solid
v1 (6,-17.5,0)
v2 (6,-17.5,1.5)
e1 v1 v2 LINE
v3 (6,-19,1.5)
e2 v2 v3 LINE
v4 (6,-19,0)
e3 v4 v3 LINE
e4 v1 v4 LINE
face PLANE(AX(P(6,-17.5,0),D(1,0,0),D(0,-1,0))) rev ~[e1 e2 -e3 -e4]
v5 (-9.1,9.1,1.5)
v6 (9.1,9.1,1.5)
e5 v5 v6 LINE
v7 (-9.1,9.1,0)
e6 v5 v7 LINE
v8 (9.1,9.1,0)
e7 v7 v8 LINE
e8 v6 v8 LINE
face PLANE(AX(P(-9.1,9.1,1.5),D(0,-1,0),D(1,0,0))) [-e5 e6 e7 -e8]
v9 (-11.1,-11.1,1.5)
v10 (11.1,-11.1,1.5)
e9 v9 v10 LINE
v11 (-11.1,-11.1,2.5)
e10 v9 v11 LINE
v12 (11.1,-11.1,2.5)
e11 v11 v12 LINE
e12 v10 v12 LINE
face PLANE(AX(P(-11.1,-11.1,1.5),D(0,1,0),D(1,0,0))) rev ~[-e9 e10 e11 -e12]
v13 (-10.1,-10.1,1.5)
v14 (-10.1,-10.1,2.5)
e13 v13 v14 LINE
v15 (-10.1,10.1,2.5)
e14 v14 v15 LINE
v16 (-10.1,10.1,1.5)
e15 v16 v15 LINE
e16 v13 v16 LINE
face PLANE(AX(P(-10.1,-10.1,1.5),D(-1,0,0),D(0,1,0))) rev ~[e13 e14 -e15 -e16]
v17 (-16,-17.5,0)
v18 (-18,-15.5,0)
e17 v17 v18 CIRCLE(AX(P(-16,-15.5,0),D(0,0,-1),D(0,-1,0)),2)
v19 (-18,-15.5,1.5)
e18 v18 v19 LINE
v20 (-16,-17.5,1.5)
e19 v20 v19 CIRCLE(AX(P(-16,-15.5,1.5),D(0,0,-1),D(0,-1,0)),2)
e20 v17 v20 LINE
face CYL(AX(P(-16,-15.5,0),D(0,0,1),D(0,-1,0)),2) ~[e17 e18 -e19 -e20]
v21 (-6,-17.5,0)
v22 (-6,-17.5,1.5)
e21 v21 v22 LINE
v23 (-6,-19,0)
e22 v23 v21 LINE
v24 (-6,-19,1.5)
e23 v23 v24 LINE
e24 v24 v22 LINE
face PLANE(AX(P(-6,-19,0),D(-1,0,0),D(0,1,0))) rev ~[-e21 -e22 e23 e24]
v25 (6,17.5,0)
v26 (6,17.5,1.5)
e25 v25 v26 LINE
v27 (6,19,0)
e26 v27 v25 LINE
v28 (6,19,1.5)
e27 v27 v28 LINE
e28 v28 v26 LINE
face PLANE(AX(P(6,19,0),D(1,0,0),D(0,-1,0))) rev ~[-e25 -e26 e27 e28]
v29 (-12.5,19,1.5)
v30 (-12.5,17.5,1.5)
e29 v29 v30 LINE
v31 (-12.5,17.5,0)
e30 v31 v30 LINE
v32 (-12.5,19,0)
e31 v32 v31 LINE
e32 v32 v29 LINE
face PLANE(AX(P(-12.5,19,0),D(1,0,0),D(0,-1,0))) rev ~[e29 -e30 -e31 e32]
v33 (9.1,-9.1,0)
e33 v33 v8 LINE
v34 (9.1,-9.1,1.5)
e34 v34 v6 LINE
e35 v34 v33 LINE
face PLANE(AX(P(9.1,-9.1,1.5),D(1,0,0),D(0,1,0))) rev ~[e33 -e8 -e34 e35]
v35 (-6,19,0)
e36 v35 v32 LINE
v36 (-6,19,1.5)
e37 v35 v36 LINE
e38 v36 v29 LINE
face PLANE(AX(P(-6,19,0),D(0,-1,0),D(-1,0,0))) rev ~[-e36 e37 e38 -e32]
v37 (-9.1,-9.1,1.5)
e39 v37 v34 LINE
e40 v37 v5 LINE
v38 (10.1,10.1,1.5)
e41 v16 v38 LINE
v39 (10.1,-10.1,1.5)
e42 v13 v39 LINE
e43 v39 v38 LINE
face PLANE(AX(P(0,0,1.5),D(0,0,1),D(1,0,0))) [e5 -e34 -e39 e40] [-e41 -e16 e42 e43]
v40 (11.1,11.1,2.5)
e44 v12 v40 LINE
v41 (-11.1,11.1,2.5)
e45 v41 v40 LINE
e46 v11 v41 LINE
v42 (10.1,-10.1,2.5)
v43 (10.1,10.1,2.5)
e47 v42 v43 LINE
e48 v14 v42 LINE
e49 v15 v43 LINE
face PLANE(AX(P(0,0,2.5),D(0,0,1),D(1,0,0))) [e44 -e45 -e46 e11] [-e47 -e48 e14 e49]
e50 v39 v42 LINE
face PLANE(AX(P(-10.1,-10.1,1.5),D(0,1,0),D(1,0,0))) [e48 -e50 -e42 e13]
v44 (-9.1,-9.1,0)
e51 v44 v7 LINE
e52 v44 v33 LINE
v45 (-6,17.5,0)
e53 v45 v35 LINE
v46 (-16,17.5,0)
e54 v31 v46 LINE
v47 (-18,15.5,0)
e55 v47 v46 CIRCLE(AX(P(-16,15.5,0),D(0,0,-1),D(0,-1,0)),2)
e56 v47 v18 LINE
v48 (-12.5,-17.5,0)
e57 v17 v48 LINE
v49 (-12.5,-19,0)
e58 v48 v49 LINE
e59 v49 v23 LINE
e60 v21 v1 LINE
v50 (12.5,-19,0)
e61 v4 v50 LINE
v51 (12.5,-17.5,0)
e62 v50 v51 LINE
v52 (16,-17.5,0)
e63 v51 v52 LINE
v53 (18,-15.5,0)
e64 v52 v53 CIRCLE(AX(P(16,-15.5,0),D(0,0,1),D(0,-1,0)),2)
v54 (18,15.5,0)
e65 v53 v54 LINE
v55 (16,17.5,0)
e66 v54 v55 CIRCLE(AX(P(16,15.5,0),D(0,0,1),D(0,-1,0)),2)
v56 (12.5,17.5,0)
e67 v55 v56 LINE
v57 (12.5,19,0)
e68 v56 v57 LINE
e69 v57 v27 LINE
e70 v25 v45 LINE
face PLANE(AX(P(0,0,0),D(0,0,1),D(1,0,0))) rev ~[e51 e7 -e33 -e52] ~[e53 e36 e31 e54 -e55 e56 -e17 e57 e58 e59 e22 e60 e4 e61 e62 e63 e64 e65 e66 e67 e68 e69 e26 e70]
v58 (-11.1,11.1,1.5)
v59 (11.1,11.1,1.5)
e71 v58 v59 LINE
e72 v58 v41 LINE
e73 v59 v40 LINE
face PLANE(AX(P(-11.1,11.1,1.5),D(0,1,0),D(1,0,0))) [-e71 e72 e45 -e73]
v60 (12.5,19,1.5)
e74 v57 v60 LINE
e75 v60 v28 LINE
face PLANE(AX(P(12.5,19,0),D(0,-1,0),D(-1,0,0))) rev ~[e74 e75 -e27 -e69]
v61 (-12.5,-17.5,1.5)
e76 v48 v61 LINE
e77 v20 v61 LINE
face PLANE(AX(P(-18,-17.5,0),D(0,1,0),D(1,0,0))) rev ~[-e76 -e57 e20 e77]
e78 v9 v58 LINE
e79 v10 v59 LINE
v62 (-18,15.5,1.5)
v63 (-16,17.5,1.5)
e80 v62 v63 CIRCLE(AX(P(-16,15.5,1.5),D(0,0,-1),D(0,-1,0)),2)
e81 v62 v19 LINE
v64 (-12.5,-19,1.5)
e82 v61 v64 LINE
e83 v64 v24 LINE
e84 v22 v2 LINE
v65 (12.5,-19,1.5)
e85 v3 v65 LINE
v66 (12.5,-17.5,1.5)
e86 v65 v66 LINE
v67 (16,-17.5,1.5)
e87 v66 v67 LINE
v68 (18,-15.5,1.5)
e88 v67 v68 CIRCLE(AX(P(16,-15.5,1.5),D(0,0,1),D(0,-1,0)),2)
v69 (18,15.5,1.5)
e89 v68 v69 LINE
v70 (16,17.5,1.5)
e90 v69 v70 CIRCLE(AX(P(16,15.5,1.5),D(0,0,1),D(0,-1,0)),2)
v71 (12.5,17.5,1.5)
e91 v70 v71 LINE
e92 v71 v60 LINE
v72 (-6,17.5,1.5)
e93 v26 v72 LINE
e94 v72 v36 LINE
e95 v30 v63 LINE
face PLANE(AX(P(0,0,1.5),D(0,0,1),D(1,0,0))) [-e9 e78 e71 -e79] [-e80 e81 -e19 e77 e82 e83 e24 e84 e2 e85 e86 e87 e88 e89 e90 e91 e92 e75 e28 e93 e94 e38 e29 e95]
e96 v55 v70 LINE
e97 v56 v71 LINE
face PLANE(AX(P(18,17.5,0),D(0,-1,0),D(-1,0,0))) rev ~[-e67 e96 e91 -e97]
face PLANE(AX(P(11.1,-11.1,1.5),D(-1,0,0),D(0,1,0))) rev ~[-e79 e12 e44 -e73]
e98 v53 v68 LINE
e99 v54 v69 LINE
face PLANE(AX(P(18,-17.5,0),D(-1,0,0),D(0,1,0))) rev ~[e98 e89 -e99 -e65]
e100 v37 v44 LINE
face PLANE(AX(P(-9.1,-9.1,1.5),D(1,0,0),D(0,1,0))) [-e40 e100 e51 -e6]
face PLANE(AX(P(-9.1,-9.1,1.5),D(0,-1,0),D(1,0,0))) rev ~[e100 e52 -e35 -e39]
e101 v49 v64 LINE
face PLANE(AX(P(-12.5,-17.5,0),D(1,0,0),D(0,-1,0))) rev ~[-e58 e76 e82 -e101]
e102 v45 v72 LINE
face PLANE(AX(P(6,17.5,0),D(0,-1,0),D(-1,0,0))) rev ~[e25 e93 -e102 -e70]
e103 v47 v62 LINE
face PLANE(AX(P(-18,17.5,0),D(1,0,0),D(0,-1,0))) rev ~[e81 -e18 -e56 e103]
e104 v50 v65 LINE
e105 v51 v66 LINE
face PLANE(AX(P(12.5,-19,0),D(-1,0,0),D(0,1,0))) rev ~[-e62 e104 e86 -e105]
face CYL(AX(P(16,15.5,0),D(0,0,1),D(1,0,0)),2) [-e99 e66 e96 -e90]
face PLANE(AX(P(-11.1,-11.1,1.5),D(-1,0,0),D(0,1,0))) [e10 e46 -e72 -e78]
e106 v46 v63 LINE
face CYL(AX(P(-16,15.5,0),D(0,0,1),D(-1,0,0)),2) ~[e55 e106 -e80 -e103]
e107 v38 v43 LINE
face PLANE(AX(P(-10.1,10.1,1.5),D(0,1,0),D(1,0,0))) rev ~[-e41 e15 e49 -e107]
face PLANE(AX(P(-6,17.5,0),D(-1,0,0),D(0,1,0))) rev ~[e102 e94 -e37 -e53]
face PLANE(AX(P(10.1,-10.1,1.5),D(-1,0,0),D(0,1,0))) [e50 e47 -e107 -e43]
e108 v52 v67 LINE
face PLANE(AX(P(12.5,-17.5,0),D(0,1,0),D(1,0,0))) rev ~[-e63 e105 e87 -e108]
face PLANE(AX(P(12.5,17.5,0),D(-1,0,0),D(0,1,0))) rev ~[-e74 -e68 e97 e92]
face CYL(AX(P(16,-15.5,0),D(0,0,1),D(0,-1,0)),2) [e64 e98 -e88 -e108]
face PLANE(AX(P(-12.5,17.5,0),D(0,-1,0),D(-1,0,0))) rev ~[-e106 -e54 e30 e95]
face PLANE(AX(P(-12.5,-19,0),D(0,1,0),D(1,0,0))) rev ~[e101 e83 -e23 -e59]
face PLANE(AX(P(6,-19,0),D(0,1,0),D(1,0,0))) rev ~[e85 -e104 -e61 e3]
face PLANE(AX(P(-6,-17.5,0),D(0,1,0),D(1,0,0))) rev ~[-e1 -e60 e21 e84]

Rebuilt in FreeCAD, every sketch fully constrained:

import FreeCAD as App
import Part
import Sketcher
from FreeCAD import Vector
Q = App.Units.Quantity


def edges_at(feature, points):
    """Names of the edges that pass closest to the given points."""
    edges = feature.Shape.Edges
    near = lambda p: min(range(len(edges)), key=lambda i: edges[i].distToShape(Part.Vertex(*p))[0])
    return sorted({f"Edge{near(p) + 1}" for p in points})

doc = App.newDocument("Part")
params = doc.addObject("Spreadsheet::Sheet", "Params")
for row, (alias, value) in enumerate([
    ("sketch1_width", "12 mm"),
    ("sketch1_height", "35 mm"),
    ("sketch1_width2", "5.5 mm"),
    ("sketch1_width3", "6.5 mm"),
    ("sketch1_height2", "1.5 mm"),
    ("pad1_length", "1.5 mm"),
    ("sketch2_width", "22.2 mm"),
    ("sketch2_width2", "20.2 mm"),
    ("pad2_length", "1 mm"),
    ("sketch3_width", "18.2 mm"),
    ("fillet_radius", "2 mm"),
], start=1):
    params.set(f"A{row}", alias)
    params.set(f"B{row}", "=" + value)
    params.setAlias(f"B{row}", alias)

body = doc.addObject("PartDesign::Body", "Body")

sketch1 = doc.addObject("Sketcher::SketchObject", "Sketch")
body.addObject(sketch1)
sketch1.AttachmentSupport = (doc.XY_Plane, [""])
sketch1.MapMode = "FlatFace"
sketch1.addGeometry([
    Part.LineSegment(Vector(-18, -17.5, 0), Vector(-12.5, -17.5, 0)),
    Part.LineSegment(Vector(-12.5, -17.5, 0), Vector(-12.5, -19, 0)),
    Part.LineSegment(Vector(-12.5, -19, 0), Vector(-6, -19, 0)),
    Part.LineSegment(Vector(-6, -19, 0), Vector(-6, -17.5, 0)),
    Part.LineSegment(Vector(-6, -17.5, 0), Vector(6, -17.5, 0)),
    Part.LineSegment(Vector(6, -17.5, 0), Vector(6, -19, 0)),
    Part.LineSegment(Vector(6, -19, 0), Vector(12.5, -19, 0)),
    Part.LineSegment(Vector(12.5, -19, 0), Vector(12.5, -17.5, 0)),
    Part.LineSegment(Vector(12.5, -17.5, 0), Vector(18, -17.5, 0)),
    Part.LineSegment(Vector(18, -17.5, 0), Vector(18, 17.5, 0)),
    Part.LineSegment(Vector(18, 17.5, 0), Vector(12.5, 17.5, 0)),
    Part.LineSegment(Vector(12.5, 17.5, 0), Vector(12.5, 19, 0)),
    Part.LineSegment(Vector(12.5, 19, 0), Vector(6, 19, 0)),
    Part.LineSegment(Vector(6, 19, 0), Vector(6, 17.5, 0)),
    Part.LineSegment(Vector(6, 17.5, 0), Vector(-6, 17.5, 0)),
    Part.LineSegment(Vector(-6, 17.5, 0), Vector(-6, 19, 0)),
    Part.LineSegment(Vector(-6, 19, 0), Vector(-12.5, 19, 0)),
    Part.LineSegment(Vector(-12.5, 19, 0), Vector(-12.5, 17.5, 0)),
    Part.LineSegment(Vector(-12.5, 17.5, 0), Vector(-18, 17.5, 0)),
    Part.LineSegment(Vector(-18, 17.5, 0), Vector(-18, -17.5, 0)),
], False)
sketch1.addConstraint([
    Sketcher.Constraint("Coincident", 0, 2, 1, 1),
    Sketcher.Constraint("Coincident", 1, 2, 2, 1),
    Sketcher.Constraint("Coincident", 2, 2, 3, 1),
    Sketcher.Constraint("Coincident", 3, 2, 4, 1),
    Sketcher.Constraint("Coincident", 4, 2, 5, 1),
    Sketcher.Constraint("Coincident", 5, 2, 6, 1),
    Sketcher.Constraint("Coincident", 6, 2, 7, 1),
    Sketcher.Constraint("Coincident", 7, 2, 8, 1),
    Sketcher.Constraint("Coincident", 8, 2, 9, 1),
    Sketcher.Constraint("Coincident", 9, 2, 10, 1),
    Sketcher.Constraint("Coincident", 10, 2, 11, 1),
    Sketcher.Constraint("Coincident", 11, 2, 12, 1),
    Sketcher.Constraint("Coincident", 12, 2, 13, 1),
    Sketcher.Constraint("Coincident", 13, 2, 14, 1),
    Sketcher.Constraint("Coincident", 14, 2, 15, 1),
    Sketcher.Constraint("Coincident", 15, 2, 16, 1),
    Sketcher.Constraint("Coincident", 16, 2, 17, 1),
    Sketcher.Constraint("Coincident", 17, 2, 18, 1),
    Sketcher.Constraint("Coincident", 18, 2, 19, 1),
    Sketcher.Constraint("Coincident", 19, 2, 0, 1),
    Sketcher.Constraint("Horizontal", 0),
    Sketcher.Constraint("Vertical", 1),
    Sketcher.Constraint("Horizontal", 2),
    Sketcher.Constraint("Vertical", 3),
    Sketcher.Constraint("Horizontal", 4),
    Sketcher.Constraint("Vertical", 5),
    Sketcher.Constraint("Horizontal", 6),
    Sketcher.Constraint("Vertical", 7),
    Sketcher.Constraint("Horizontal", 8),
    Sketcher.Constraint("Vertical", 9),
    Sketcher.Constraint("Horizontal", 10),
    Sketcher.Constraint("Vertical", 11),
    Sketcher.Constraint("Horizontal", 12),
    Sketcher.Constraint("Vertical", 13),
    Sketcher.Constraint("Horizontal", 14),
    Sketcher.Constraint("Vertical", 15),
    Sketcher.Constraint("Horizontal", 16),
    Sketcher.Constraint("Vertical", 17),
    Sketcher.Constraint("Horizontal", 18),
    Sketcher.Constraint("Vertical", 19),
    Sketcher.Constraint("Symmetric", 0, 2, 10, 2, -1, 1),
    Sketcher.Constraint("Symmetric", 2, 2, 12, 2, -1, 1),
    Sketcher.Constraint("Symmetric", 4, 2, 14, 2, -1, 1),
    Sketcher.Constraint("Symmetric", 6, 2, 16, 2, -1, 1),
    Sketcher.Constraint("Symmetric", 8, 2, 18, 2, -1, 1),
    Sketcher.Constraint("Symmetric", 2, 2, 5, 2, -2),
    Sketcher.Constraint("Symmetric", 0, 2, 7, 2, -2),
    Sketcher.Constraint("Horizontal", 0, 2, 3, 2),
    Sketcher.Constraint("DistanceX", 4, 1, 4, 2, Q("12 mm")),
    Sketcher.Constraint("DistanceY", 9, 1, 9, 2, Q("35 mm")),
    Sketcher.Constraint("DistanceX", 0, 1, 0, 2, Q("5.5 mm")),
    Sketcher.Constraint("DistanceX", 2, 1, 2, 2, Q("6.5 mm")),
    Sketcher.Constraint("DistanceY", 1, 2, 1, 1, Q("1.5 mm")),
])
sketch1.setExpression("Constraints[48]", "Params.sketch1_width")
sketch1.setExpression("Constraints[49]", "Params.sketch1_height")
sketch1.setExpression("Constraints[50]", "Params.sketch1_width2")
sketch1.setExpression("Constraints[51]", "Params.sketch1_width3")
sketch1.setExpression("Constraints[52]", "Params.sketch1_height2")
pad1 = doc.addObject("PartDesign::Pad", "Pad")
body.addObject(pad1)
pad1.Profile = sketch1
pad1.setExpression("Length", "Params.pad1_length")

sketch2 = doc.addObject("Sketcher::SketchObject", "Sketch001")
body.addObject(sketch2)
sketch2.AttachmentSupport = (doc.XY_Plane, [""])
sketch2.MapMode = "FlatFace"
sketch2.AttachmentOffset = App.Placement(Vector(0, 0, 1.5), App.Rotation())
sketch2.addGeometry([
    Part.LineSegment(Vector(-11, 11, 0), Vector(-11, -11, 0)),
    Part.LineSegment(Vector(-11, -11, 0), Vector(11, -11, 0)),
    Part.LineSegment(Vector(11, -11, 0), Vector(11, 11, 0)),
    Part.LineSegment(Vector(11, 11, 0), Vector(-11, 11, 0)),
    Part.LineSegment(Vector(10, -10, 0), Vector(-10, -10, 0)),
    Part.LineSegment(Vector(-10, -10, 0), Vector(-10, 10, 0)),
    Part.LineSegment(Vector(-10, 10, 0), Vector(10, 10, 0)),
    Part.LineSegment(Vector(10, 10, 0), Vector(10, -10, 0)),
], False)
sketch2.addConstraint([
    Sketcher.Constraint("Coincident", 0, 2, 1, 1),
    Sketcher.Constraint("Coincident", 1, 2, 2, 1),
    Sketcher.Constraint("Coincident", 2, 2, 3, 1),
    Sketcher.Constraint("Coincident", 3, 2, 0, 1),
    Sketcher.Constraint("Coincident", 4, 2, 5, 1),
    Sketcher.Constraint("Coincident", 5, 2, 6, 1),
    Sketcher.Constraint("Coincident", 6, 2, 7, 1),
    Sketcher.Constraint("Coincident", 7, 2, 4, 1),
    Sketcher.Constraint("Vertical", 0),
    Sketcher.Constraint("Horizontal", 1),
    Sketcher.Constraint("Vertical", 2),
    Sketcher.Constraint("Horizontal", 3),
    Sketcher.Constraint("Horizontal", 4),
    Sketcher.Constraint("Vertical", 5),
    Sketcher.Constraint("Horizontal", 6),
    Sketcher.Constraint("Vertical", 7),
    Sketcher.Constraint("Symmetric", 0, 2, 2, 2, -1, 1),
    Sketcher.Constraint("Symmetric", 4, 2, 6, 2, -1, 1),
    Sketcher.Constraint("Equal", 3, 0),
    Sketcher.Constraint("Equal", 6, 5),
    Sketcher.Constraint("DistanceX", 1, 1, 1, 2, Q("22.2 mm")),
    Sketcher.Constraint("DistanceX", 4, 2, 4, 1, Q("20.2 mm")),
])
sketch2.setExpression("Constraints[20]", "Params.sketch2_width")
sketch2.setExpression("Constraints[21]", "Params.sketch2_width2")
pad2 = doc.addObject("PartDesign::Pad", "Pad001")
body.addObject(pad2)
pad2.Profile = sketch2
pad2.setExpression("Length", "Params.pad2_length")

sketch3 = doc.addObject("Sketcher::SketchObject", "Sketch002")
body.addObject(sketch3)
sketch3.AttachmentSupport = (doc.XY_Plane, [""])
sketch3.MapMode = "FlatFace"
sketch3.AttachmentOffset = App.Placement(Vector(0, 0, 1.5), App.Rotation())
sketch3.addGeometry([
    Part.LineSegment(Vector(-9, 9, 0), Vector(-9, -9, 0)),
    Part.LineSegment(Vector(-9, -9, 0), Vector(9, -9, 0)),
    Part.LineSegment(Vector(9, -9, 0), Vector(9, 9, 0)),
    Part.LineSegment(Vector(9, 9, 0), Vector(-9, 9, 0)),
], False)
sketch3.addConstraint([
    Sketcher.Constraint("Coincident", 0, 2, 1, 1),
    Sketcher.Constraint("Coincident", 1, 2, 2, 1),
    Sketcher.Constraint("Coincident", 2, 2, 3, 1),
    Sketcher.Constraint("Coincident", 3, 2, 0, 1),
    Sketcher.Constraint("Vertical", 0),
    Sketcher.Constraint("Horizontal", 1),
    Sketcher.Constraint("Vertical", 2),
    Sketcher.Constraint("Horizontal", 3),
    Sketcher.Constraint("Symmetric", 0, 2, 2, 2, -1, 1),
    Sketcher.Constraint("Equal", 3, 0),
    Sketcher.Constraint("DistanceX", 1, 1, 1, 2, Q("18.2 mm")),
])
sketch3.setExpression("Constraints[10]", "Params.sketch3_width")
pocket1 = doc.addObject("PartDesign::Pocket", "Pocket")
body.addObject(pocket1)
pocket1.Profile = sketch3
pocket1.Type = "ThroughAll"
doc.recompute()

fillet = doc.addObject("PartDesign::Fillet", "Fillet")
body.addObject(fillet)
fillet.Base = (pocket1, edges_at(pocket1, [
    (18, 17.5, 0.75),
    (18, -17.5, 0.75),
    (-18, -17.5, 0.75),
    (-18, 17.5, 0.75),
]))
fillet.setExpression("Radius", "Params.fillet_radius")

doc.recompute()
